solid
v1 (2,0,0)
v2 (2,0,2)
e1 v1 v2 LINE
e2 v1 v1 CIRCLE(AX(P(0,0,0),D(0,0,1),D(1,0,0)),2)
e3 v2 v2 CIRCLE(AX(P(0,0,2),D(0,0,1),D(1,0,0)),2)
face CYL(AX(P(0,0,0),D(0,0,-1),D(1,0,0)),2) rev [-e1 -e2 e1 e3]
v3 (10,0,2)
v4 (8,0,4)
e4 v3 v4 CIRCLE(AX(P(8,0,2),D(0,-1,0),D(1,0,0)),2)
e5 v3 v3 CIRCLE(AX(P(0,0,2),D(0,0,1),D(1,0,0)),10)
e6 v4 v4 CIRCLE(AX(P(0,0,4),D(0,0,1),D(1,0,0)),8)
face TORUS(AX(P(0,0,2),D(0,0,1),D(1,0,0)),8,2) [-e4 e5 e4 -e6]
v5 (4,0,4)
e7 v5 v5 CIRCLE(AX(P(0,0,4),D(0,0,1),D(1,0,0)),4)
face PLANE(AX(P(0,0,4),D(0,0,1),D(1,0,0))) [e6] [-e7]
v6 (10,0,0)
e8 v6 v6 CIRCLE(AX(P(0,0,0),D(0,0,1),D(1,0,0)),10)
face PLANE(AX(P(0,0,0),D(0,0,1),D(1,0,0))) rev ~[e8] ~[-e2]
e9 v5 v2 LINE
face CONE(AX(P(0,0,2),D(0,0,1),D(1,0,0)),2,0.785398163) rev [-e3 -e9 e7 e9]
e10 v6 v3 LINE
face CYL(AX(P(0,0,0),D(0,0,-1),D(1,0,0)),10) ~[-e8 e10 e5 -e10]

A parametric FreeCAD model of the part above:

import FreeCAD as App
import Part
import Sketcher
from FreeCAD import Vector


def edges_at(feature, points):
    """Names of the edges that pass closest to the given points."""
    edges = feature.Shape.Edges
    near = lambda p: min(range(len(edges)), key=lambda i: edges[i].distToShape(Part.Vertex(*p))[0])
    return sorted({f"Edge{near(p) + 1}" for p in points})

doc = App.newDocument("Part")
body = doc.addObject("PartDesign::Body", "Body")

# Sketch on XY plane
sketch1 = body.newObject("Sketcher::SketchObject", "Sketch")
sketch1.AttachmentSupport = (doc.getObject("XY_Plane"), [""])
sketch1.MapMode = "FlatFace"
sketch1.addGeometry([
    Part.Circle(Vector(0, 0, 0), Vector(0, 0, 1), 10),
    Part.Circle(Vector(0, 0, 0), Vector(0, 0, 1), 2),
], False)
sketch1.addConstraint([
    Sketcher.Constraint("Coincident", 0, 3, -1, 1),
    Sketcher.Constraint("Coincident", 1, 3, -1, 1),
    Sketcher.Constraint("Diameter", 0, 20.0),
    Sketcher.Constraint("Diameter", 1, 4.0),
])
pad1 = body.newObject("PartDesign::Pad", "Pad")
pad1.Profile = sketch1
pad1.Length = 4
doc.recompute()

fillet = body.newObject("PartDesign::Fillet", "Fillet")
fillet.Base = (pad1, edges_at(pad1, [(-10, 0, 4)]))
fillet.Radius = 2
doc.recompute()

chamfer = body.newObject("PartDesign::Chamfer", "Chamfer")
chamfer.Base = (fillet, edges_at(fillet, [(-2, 0, 4)]))
chamfer.Size = 2

doc.recompute()
